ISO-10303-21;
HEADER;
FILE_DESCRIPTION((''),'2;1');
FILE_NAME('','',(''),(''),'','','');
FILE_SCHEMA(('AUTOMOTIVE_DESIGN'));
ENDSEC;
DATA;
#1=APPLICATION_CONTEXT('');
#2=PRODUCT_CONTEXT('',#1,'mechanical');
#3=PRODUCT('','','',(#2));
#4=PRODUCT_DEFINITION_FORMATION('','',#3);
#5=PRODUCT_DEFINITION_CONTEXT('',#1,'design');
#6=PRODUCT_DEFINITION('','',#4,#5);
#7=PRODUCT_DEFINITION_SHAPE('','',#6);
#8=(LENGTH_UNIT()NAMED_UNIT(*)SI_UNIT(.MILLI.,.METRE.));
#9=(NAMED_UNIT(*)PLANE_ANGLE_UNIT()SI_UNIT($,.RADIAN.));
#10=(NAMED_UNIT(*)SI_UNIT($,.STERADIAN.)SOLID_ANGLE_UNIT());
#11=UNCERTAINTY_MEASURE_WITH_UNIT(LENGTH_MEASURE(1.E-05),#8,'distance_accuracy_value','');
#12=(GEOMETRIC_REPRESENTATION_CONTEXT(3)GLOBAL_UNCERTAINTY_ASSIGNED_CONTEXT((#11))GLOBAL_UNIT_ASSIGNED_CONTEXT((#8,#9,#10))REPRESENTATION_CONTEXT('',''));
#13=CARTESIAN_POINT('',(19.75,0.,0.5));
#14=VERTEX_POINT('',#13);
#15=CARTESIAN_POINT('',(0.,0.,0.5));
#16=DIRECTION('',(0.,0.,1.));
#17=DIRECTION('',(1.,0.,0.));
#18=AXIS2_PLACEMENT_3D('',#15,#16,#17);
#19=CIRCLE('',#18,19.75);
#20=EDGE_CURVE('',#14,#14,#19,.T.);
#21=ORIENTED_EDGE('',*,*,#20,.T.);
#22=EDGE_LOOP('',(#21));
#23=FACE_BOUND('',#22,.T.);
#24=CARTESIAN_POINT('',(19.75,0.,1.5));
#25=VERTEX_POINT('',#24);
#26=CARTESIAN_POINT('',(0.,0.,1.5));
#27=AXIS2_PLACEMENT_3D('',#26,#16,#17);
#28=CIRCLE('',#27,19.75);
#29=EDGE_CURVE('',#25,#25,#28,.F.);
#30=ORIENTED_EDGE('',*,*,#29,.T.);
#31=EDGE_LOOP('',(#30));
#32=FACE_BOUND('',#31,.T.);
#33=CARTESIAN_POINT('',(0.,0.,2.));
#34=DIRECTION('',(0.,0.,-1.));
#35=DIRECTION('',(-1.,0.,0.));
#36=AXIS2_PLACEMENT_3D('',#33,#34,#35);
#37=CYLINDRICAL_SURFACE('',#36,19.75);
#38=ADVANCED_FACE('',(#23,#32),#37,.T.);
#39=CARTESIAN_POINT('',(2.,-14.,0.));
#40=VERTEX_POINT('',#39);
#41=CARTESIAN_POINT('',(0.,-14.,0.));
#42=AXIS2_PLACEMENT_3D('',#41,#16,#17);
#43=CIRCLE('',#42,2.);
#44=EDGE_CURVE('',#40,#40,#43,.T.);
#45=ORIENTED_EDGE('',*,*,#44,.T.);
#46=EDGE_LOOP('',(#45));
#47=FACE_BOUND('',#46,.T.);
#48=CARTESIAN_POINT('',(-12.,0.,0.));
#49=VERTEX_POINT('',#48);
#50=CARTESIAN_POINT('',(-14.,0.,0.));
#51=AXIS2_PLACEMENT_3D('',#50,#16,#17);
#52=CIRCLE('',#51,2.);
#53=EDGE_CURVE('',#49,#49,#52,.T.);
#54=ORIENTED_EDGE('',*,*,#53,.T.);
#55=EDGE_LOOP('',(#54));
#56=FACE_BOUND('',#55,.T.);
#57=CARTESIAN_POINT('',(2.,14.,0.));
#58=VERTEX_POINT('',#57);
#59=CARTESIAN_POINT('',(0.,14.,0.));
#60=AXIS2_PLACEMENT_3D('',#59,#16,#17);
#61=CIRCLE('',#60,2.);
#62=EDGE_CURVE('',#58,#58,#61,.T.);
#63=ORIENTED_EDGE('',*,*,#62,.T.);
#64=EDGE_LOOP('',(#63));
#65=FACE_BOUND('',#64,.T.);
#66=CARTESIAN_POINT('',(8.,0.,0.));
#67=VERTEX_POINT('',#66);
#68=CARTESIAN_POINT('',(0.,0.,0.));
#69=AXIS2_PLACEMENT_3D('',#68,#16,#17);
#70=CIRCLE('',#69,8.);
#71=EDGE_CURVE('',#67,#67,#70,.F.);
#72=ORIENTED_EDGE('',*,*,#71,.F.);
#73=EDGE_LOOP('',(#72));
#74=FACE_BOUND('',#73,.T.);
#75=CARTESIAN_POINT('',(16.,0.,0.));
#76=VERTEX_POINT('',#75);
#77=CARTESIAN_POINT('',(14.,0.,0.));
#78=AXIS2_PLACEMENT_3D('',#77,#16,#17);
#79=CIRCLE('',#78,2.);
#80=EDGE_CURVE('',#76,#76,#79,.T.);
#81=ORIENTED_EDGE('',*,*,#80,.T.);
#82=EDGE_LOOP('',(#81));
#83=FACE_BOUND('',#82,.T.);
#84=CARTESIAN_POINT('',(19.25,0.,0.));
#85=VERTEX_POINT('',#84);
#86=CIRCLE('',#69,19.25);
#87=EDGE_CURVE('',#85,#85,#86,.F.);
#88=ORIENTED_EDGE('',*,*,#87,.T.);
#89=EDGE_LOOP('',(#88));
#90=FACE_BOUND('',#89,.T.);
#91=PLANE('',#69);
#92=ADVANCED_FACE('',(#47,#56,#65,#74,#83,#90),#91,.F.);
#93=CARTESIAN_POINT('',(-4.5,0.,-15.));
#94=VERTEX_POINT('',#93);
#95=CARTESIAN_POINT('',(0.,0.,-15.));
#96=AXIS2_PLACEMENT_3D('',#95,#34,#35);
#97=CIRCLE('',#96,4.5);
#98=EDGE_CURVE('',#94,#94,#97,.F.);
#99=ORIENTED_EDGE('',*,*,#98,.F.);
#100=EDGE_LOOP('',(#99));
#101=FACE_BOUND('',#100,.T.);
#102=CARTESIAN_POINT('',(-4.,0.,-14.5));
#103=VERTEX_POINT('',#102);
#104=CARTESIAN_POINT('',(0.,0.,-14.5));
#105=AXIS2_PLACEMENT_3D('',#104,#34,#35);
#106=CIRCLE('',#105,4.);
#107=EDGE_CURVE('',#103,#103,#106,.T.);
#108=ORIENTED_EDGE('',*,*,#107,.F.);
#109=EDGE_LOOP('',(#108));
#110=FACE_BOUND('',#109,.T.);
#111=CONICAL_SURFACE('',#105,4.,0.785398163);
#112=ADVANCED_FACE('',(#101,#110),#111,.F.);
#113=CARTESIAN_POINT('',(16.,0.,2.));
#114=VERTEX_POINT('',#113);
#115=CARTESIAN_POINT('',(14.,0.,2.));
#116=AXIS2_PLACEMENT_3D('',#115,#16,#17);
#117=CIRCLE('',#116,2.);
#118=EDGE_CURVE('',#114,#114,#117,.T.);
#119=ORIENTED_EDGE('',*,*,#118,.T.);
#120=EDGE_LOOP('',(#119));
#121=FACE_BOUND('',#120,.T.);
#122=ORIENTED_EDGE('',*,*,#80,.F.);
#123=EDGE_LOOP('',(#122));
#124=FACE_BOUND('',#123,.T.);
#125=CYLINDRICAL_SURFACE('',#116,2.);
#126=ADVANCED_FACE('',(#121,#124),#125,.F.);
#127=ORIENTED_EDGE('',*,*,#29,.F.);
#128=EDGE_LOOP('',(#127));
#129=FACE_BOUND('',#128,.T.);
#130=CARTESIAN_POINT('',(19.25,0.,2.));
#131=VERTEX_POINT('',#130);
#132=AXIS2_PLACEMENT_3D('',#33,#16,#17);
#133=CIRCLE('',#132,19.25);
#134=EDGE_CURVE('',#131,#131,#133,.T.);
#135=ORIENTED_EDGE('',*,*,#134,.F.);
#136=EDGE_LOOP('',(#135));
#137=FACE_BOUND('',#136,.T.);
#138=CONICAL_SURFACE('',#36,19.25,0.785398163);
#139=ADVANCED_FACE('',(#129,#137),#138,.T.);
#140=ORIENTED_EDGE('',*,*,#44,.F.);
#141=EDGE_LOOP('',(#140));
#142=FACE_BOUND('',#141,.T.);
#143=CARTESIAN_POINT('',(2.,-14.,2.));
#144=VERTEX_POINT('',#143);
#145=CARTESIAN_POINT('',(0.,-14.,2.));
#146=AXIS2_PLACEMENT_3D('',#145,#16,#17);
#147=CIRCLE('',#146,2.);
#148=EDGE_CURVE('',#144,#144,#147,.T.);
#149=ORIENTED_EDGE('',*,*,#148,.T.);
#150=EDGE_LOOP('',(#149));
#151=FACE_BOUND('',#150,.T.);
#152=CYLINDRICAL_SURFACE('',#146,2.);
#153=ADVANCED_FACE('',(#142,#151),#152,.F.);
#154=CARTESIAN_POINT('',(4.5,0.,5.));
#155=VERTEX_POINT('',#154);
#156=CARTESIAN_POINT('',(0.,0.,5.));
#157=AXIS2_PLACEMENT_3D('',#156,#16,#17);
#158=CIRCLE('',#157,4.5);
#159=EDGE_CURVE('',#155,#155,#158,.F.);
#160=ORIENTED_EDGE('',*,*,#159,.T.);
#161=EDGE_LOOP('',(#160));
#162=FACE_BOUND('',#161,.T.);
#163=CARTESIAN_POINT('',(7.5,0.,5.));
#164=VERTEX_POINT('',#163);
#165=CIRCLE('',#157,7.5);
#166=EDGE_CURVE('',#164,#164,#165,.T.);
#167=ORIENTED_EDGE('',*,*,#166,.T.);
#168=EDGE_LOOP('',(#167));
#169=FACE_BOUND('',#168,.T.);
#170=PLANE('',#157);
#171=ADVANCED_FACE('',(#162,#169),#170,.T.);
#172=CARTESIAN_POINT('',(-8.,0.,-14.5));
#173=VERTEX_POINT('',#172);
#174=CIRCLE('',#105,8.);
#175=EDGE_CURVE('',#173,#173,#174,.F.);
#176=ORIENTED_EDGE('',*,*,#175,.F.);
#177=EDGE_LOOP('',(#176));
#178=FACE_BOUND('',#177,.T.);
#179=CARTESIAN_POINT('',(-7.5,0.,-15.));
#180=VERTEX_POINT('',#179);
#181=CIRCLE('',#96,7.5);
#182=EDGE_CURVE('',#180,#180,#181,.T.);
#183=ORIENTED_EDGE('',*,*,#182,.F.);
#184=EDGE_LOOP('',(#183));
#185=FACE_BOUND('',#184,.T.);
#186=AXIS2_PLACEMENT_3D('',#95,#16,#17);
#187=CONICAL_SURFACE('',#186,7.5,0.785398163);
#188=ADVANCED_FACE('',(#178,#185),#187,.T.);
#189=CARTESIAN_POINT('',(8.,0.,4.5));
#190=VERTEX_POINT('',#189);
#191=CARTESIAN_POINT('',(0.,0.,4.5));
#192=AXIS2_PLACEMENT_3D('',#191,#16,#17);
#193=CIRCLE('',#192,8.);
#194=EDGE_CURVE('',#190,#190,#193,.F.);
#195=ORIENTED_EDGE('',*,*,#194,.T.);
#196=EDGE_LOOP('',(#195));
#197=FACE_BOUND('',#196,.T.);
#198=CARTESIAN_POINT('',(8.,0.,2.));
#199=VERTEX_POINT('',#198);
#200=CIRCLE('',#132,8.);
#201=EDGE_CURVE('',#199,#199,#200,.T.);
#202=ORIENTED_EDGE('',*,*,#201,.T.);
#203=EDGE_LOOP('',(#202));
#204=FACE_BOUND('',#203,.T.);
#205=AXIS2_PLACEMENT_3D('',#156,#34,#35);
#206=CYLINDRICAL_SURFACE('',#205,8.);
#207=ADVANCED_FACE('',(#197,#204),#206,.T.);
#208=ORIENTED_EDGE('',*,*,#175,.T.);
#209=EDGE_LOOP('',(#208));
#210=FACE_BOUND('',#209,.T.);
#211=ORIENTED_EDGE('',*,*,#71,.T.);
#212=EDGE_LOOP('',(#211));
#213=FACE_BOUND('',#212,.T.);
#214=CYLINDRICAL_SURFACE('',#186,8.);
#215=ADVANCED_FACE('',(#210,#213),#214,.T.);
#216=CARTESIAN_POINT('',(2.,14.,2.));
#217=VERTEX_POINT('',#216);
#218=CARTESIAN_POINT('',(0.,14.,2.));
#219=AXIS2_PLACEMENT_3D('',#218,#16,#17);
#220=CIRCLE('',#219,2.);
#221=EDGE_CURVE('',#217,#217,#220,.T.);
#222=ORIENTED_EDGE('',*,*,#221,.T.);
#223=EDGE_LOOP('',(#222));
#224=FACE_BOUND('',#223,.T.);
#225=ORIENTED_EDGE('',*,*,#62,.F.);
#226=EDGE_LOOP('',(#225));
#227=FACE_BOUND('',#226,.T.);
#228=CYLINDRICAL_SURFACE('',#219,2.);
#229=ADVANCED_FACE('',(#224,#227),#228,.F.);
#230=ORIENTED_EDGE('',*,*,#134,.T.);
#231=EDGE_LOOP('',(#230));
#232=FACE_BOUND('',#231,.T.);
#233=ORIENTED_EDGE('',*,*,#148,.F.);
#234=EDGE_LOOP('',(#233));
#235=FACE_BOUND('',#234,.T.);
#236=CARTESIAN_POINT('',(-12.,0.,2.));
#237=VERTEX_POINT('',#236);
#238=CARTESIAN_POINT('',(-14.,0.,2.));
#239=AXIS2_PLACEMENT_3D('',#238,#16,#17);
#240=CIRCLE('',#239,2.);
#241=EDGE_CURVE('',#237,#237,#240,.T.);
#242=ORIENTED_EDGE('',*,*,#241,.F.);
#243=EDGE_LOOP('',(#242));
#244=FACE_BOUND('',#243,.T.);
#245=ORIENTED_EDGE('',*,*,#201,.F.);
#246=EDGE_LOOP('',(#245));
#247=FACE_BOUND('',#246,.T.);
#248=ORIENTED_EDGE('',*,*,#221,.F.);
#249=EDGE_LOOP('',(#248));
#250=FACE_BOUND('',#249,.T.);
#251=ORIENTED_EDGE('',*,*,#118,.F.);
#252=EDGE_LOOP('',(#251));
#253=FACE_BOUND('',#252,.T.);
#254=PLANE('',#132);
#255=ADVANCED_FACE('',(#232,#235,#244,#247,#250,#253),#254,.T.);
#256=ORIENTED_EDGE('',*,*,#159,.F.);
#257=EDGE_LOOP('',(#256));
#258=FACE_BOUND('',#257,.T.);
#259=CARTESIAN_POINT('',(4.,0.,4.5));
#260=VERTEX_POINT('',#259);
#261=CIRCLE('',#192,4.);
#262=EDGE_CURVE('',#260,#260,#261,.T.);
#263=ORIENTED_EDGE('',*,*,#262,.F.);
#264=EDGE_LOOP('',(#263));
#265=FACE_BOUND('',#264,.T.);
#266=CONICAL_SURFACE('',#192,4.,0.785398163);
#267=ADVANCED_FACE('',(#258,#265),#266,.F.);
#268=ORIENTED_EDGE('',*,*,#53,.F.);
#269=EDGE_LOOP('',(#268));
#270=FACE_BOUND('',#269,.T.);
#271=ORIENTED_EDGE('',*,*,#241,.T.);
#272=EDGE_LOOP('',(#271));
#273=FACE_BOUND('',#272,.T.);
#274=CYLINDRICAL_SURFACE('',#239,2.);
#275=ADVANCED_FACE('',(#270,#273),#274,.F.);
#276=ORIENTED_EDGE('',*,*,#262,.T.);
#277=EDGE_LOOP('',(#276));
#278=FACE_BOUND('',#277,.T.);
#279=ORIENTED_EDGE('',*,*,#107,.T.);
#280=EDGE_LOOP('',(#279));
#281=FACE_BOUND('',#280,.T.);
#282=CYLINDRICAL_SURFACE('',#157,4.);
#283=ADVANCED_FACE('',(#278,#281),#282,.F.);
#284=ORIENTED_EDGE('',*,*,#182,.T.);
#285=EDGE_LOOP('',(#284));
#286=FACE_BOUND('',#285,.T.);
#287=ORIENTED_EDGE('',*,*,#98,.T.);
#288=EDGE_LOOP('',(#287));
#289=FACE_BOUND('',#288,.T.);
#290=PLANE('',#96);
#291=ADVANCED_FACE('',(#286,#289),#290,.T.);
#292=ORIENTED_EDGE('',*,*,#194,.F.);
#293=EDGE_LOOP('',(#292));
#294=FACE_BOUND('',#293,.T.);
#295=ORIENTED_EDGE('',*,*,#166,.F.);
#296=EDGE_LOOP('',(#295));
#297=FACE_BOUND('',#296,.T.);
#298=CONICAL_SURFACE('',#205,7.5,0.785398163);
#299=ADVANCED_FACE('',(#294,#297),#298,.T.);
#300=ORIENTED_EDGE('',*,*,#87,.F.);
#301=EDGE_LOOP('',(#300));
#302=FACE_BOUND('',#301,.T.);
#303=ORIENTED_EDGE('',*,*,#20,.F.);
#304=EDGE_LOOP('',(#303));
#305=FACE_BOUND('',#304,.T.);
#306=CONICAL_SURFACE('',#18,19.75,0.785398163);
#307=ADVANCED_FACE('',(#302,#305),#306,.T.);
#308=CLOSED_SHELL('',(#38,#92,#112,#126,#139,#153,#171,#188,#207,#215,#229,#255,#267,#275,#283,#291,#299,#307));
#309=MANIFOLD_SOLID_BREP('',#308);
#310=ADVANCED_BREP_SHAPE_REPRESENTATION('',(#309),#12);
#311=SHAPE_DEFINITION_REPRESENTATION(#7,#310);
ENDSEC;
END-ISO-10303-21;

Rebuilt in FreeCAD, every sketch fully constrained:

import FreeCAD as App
import Part
import Sketcher


def edges_at(feature, points):
    """Names of the edges that pass closest to the given points."""
    edges = feature.Shape.Edges
    near = lambda p: min(range(len(edges)), key=lambda i: edges[i].distToShape(Part.Vertex(*p))[0])
    return sorted({f"Edge{near(p) + 1}" for p in points})

doc = App.newDocument("Part")
body = doc.addObject("PartDesign::Body", "Body")

# Sketch on XY plane
sketch1 = body.newObject("Sketcher::SketchObject", "Sketch")
sketch1.AttachmentSupport = (doc.getObject("XY_Plane"), [""])
sketch1.MapMode = "FlatFace"
sketch1.addGeometry(Part.Circle(App.Vector(0, 0, 0), App.Vector(0, 0, 1), 20), False)
sketch1.addConstraint([
    Sketcher.Constraint("Coincident", 0, 3, -1, 1),
    Sketcher.Constraint("Diameter", 0, 39.5),
])
pad1 = body.newObject("PartDesign::Pad", "Pad")
pad1.Profile = sketch1
pad1.Length = 2

# Sketch on XY plane
sketch2 = body.newObject("Sketcher::SketchObject", "Sketch001")
sketch2.AttachmentSupport = (doc.getObject("XY_Plane"), [""])
sketch2.MapMode = "FlatFace"
sketch2.AttachmentOffset = App.Placement(App.Vector(0, 0, 2), App.Rotation())
sketch2.addGeometry(Part.Circle(App.Vector(0, 0, 0), App.Vector(0, 0, 1), 8), False)
sketch2.addConstraint([
    Sketcher.Constraint("Coincident", 0, 3, -1, 1),
    Sketcher.Constraint("Diameter", 0, 16.0),
])
pad2 = body.newObject("PartDesign::Pad", "Pad001")
pad2.Profile = sketch2
pad2.Length = 3

# Sketch on XY plane
sketch3 = body.newObject("Sketcher::SketchObject", "Sketch002")
sketch3.AttachmentSupport = (doc.getObject("XY_Plane"), [""])
sketch3.MapMode = "FlatFace"
sketch3.AttachmentOffset = App.Placement(App.Vector(0, 0, -15), App.Rotation())
sketch3.addGeometry(Part.Circle(App.Vector(0, 0, 0), App.Vector(0, 0, 1), 8), False)
sketch3.addConstraint([
    Sketcher.Constraint("Coincident", 0, 3, -1, 1),
    Sketcher.Constraint("Diameter", 0, 16.0),
])
pad3 = body.newObject("PartDesign::Pad", "Pad002")
pad3.Profile = sketch3
pad3.Length = 15

# Sketch on XY plane
sketch4 = body.newObject("Sketcher::SketchObject", "Sketch003")
sketch4.AttachmentSupport = (doc.getObject("XY_Plane"), [""])
sketch4.MapMode = "FlatFace"
sketch4.AttachmentOffset = App.Placement(App.Vector(0, 0, 5), App.Rotation())
sketch4.addGeometry(Part.Circle(App.Vector(0, 0, 0), App.Vector(0, 0, 1), 4), False)
sketch4.addConstraint([
    Sketcher.Constraint("Coincident", 0, 3, -1, 1),
    Sketcher.Constraint("Diameter", 0, 8.0),
])
doc.recompute()
hole = body.newObject("PartDesign::Hole", "Hole")
hole.Profile = sketch4
hole.ThreadType = "None"
hole.Diameter = 8
hole.DepthType = "ThroughAll"

# Sketch on XY plane
sketch5 = body.newObject("Sketcher::SketchObject", "Sketch004")
sketch5.AttachmentSupport = (doc.getObject("XY_Plane"), [""])
sketch5.MapMode = "FlatFace"
sketch5.AttachmentOffset = App.Placement(App.Vector(0, 0, 2), App.Rotation())
sketch5.addGeometry([
    Part.Circle(App.Vector(0, 14, 0), App.Vector(0, 0, 1), 2),
    Part.Circle(App.Vector(0, -14, 0), App.Vector(0, 0, 1), 2),
    Part.Circle(App.Vector(-14, 0, 0), App.Vector(0, 0, 1), 2),
    Part.Circle(App.Vector(14, 0, 0), App.Vector(0, 0, 1), 2),
], False)
sketch5.addConstraint([
    Sketcher.Constraint("Equal", 0, 1),
    Sketcher.Constraint("Equal", 1, 2),
    Sketcher.Constraint("Equal", 2, 3),
    Sketcher.Constraint("Symmetric", 0, 3, 1, 3, -1, 1),
    Sketcher.Constraint("Symmetric", 2, 3, 3, 3, -1, 1),
    Sketcher.Constraint("PointOnObject", 0, 3, -2),
    Sketcher.Constraint("PointOnObject", 2, 3, -1),
    Sketcher.Constraint("Diameter", 0, 4.0),
    Sketcher.Constraint("DistanceY", -1, 1, 0, 3, 14.0),
    Sketcher.Constraint("DistanceX", 2, 3, -1, 1, 14.0),
])
doc.recompute()
hole2 = body.newObject("PartDesign::Hole", "Hole001")
hole2.Profile = sketch5
hole2.ThreadType = "None"
hole2.Diameter = 4
hole2.DepthType = "ThroughAll"
doc.recompute()

chamfer = body.newObject("PartDesign::Chamfer", "Chamfer")
chamfer.Base = (hole2, edges_at(hole2, [
    (-8, 0, -15),
    (4, 0, 5),
    (4, 0, -15),
    (-19.75, 0, 0),
    (-19.75, 0, 2),
    (-8, 0, 5),
]))
chamfer.Size = 0.5

doc.recompute()
